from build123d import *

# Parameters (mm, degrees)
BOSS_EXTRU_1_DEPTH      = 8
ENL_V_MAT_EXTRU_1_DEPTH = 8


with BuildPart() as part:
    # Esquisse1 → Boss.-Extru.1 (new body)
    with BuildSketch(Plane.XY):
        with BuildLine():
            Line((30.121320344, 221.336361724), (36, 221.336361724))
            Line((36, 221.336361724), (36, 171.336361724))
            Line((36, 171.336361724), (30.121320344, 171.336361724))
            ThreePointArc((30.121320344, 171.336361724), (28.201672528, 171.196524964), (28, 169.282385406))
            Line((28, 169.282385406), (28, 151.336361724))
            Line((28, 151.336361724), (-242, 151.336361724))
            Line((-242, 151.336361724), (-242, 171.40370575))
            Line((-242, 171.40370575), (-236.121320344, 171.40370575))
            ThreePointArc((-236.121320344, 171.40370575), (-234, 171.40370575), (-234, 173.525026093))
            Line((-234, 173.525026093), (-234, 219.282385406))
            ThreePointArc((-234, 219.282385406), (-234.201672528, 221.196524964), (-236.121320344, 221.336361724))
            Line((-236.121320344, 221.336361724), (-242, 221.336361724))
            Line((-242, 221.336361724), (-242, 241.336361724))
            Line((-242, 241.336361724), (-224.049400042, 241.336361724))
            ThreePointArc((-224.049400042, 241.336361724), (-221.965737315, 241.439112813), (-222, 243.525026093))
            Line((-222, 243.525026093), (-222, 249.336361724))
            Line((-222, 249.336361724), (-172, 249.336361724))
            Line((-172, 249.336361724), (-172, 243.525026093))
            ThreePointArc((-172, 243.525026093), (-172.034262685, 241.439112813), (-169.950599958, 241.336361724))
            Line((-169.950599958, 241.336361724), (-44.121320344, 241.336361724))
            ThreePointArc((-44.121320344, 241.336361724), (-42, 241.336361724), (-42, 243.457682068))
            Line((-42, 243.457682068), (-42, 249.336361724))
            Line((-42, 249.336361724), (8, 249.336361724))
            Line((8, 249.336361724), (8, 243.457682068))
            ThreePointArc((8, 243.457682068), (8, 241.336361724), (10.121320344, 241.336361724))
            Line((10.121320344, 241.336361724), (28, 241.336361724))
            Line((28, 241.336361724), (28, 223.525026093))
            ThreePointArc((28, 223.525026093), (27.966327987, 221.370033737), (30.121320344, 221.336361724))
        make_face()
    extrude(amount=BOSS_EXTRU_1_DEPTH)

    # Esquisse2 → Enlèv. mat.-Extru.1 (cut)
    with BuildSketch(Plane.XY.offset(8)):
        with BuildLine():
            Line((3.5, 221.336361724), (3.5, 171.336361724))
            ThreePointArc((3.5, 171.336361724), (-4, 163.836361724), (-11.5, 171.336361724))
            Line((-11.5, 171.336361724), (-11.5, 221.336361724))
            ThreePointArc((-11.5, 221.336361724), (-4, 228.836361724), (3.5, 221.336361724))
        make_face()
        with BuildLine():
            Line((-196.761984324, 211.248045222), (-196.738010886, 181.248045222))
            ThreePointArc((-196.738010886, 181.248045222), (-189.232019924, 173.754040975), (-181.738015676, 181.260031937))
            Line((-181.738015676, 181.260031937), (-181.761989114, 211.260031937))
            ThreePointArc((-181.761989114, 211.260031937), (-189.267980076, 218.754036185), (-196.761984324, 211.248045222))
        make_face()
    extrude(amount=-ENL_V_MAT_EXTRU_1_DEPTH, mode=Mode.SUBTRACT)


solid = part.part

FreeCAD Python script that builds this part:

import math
import FreeCAD as App
import Part
import Sketcher
from FreeCAD import Vector
Q = App.Units.Quantity

doc = App.newDocument("Part")
body = doc.addObject("PartDesign::Body", "Body")

# Sketch on XY plane
sketch1 = body.newObject("Sketcher::SketchObject", "Sketch")
sketch1.AttachmentSupport = (doc.getObject("XY_Plane"), [""])
sketch1.MapMode = "FlatFace"
sketch1.addGeometry([
    Part.LineSegment(Vector(36, 221.3, 0), Vector(30.1, 221.3, 0)),  # 0
    Part.ArcOfCircle(Part.Circle(Vector(29.1, 222.4, 0), Vector(0, 0, 1), 1.5), math.radians(134), math.radians(314)),  # 1
    Part.LineSegment(Vector(28, 223.5, 0), Vector(28, 241.3, 0)),  # 2
    Part.LineSegment(Vector(28, 241.3, 0), Vector(10.1, 241.3, 0)),  # 3
    Part.ArcOfCircle(Part.Circle(Vector(9.1, 242.4, 0), Vector(0, 0, 1), 1.5), math.radians(135), math.radians(315)),  # 4
    Part.LineSegment(Vector(8, 243.5, 0), Vector(8, 249.3, 0)),  # 5
    Part.LineSegment(Vector(8, 249.3, 0), Vector(-42, 249.3, 0)),  # 6
    Part.LineSegment(Vector(-42, 249.3, 0), Vector(-42, 243.5, 0)),  # 7
    Part.ArcOfCircle(Part.Circle(Vector(-43.1, 242.4, 0), Vector(0, 0, 1), 1.5), math.radians(-135), math.radians(45)),  # 8
    Part.LineSegment(Vector(-44.1, 241.3, 0), Vector(-170, 241.3, 0)),  # 9
    Part.ArcOfCircle(Part.Circle(Vector(-170.9, 242.5, 0), Vector(0, 0, 1), 1.5), math.radians(135), math.radians(311)),  # 10
    Part.LineSegment(Vector(-172, 243.5, 0), Vector(-172, 249.3, 0)),  # 11
    Part.LineSegment(Vector(-172, 249.3, 0), Vector(-222, 249.3, 0)),  # 12
    Part.LineSegment(Vector(-222, 249.3, 0), Vector(-222, 243.5, 0)),  # 13
    Part.ArcOfCircle(Part.Circle(Vector(-223.1, 242.5, 0), Vector(0, 0, 1), 1.5), math.radians(-131), math.radians(45)),  # 14
    Part.LineSegment(Vector(-224, 241.3, 0), Vector(-242, 241.3, 0)),  # 15
    Part.LineSegment(Vector(-242, 241.3, 0), Vector(-242, 221.3, 0)),  # 16
    Part.LineSegment(Vector(-242, 221.3, 0), Vector(-236.1, 221.3, 0)),  # 17
    Part.ArcOfCircle(Part.Circle(Vector(-235.2, 220.1, 0), Vector(0, 0, 1), 1.5), math.radians(-34), math.radians(126)),  # 18
    Part.LineSegment(Vector(-234, 219.3, 0), Vector(-234, 173.5, 0)),  # 19
    Part.ArcOfCircle(Part.Circle(Vector(-235.1, 172.5, 0), Vector(0, 0, 1), 1.5), math.radians(-135), math.radians(45)),  # 20
    Part.LineSegment(Vector(-236.1, 171.4, 0), Vector(-242, 171.4, 0)),  # 21
    Part.LineSegment(Vector(-242, 171.4, 0), Vector(-242, 151.3, 0)),  # 22
    Part.LineSegment(Vector(-242, 151.3, 0), Vector(28, 151.3, 0)),  # 23
    Part.LineSegment(Vector(28, 151.3, 0), Vector(28, 169.3, 0)),  # 24
    Part.ArcOfCircle(Part.Circle(Vector(29.2, 170.1, 0), Vector(0, 0, 1), 1.5), math.radians(54), math.radians(214)),  # 25
    Part.LineSegment(Vector(30.1, 171.3, 0), Vector(36, 171.3, 0)),  # 26
    Part.LineSegment(Vector(36, 171.3, 0), Vector(36, 221.3, 0)),  # 27
], False)
sketch1.addConstraint([
    Sketcher.Constraint("Coincident", 0, 2, 1, 2),
    Sketcher.Constraint("Coincident", 1, 1, 2, 1),
    Sketcher.Constraint("Coincident", 2, 2, 3, 1),
    Sketcher.Constraint("Coincident", 3, 2, 4, 2),
    Sketcher.Constraint("Coincident", 4, 1, 5, 1),
    Sketcher.Constraint("Coincident", 5, 2, 6, 1),
    Sketcher.Constraint("Coincident", 6, 2, 7, 1),
    Sketcher.Constraint("Coincident", 7, 2, 8, 2),
    Sketcher.Constraint("Coincident", 8, 1, 9, 1),
    Sketcher.Constraint("Coincident", 9, 2, 10, 2),
    Sketcher.Constraint("Coincident", 10, 1, 11, 1),
    Sketcher.Constraint("Coincident", 11, 2, 12, 1),
    Sketcher.Constraint("Coincident", 12, 2, 13, 1),
    Sketcher.Constraint("Coincident", 13, 2, 14, 2),
    Sketcher.Constraint("Coincident", 14, 1, 15, 1),
    Sketcher.Constraint("Coincident", 15, 2, 16, 1),
    Sketcher.Constraint("Coincident", 16, 2, 17, 1),
    Sketcher.Constraint("Coincident", 17, 2, 18, 2),
    Sketcher.Constraint("Coincident", 18, 1, 19, 1),
    Sketcher.Constraint("Coincident", 19, 2, 20, 2),
    Sketcher.Constraint("Coincident", 20, 1, 21, 1),
    Sketcher.Constraint("Coincident", 21, 2, 22, 1),
    Sketcher.Constraint("Coincident", 22, 2, 23, 1),
    Sketcher.Constraint("Coincident", 23, 2, 24, 1),
    Sketcher.Constraint("Coincident", 24, 2, 25, 2),
    Sketcher.Constraint("Coincident", 25, 1, 26, 1),
    Sketcher.Constraint("Coincident", 26, 2, 27, 1),
    Sketcher.Constraint("Coincident", 27, 2, 0, 1),
    Sketcher.Constraint("Horizontal", 0),
    Sketcher.Constraint("Vertical", 2),
    Sketcher.Constraint("Horizontal", 3),
    Sketcher.Constraint("Vertical", 5),
    Sketcher.Constraint("Horizontal", 6),
    Sketcher.Constraint("Vertical", 7),
    Sketcher.Constraint("Horizontal", 9),
    Sketcher.Constraint("Vertical", 11),
    Sketcher.Constraint("Horizontal", 12),
    Sketcher.Constraint("Vertical", 13),
    Sketcher.Constraint("Horizontal", 15),
    Sketcher.Constraint("Vertical", 16),
    Sketcher.Constraint("Horizontal", 17),
    Sketcher.Constraint("Vertical", 19),
    Sketcher.Constraint("Horizontal", 21),
    Sketcher.Constraint("Vertical", 22),
    Sketcher.Constraint("Horizontal", 23),
    Sketcher.Constraint("Vertical", 24),
    Sketcher.Constraint("Horizontal", 26),
    Sketcher.Constraint("Vertical", 27),
    Sketcher.Constraint("Equal", 4, 8),
    Sketcher.Constraint("Equal", 8, 10),
    Sketcher.Constraint("Equal", 10, 14),
    Sketcher.Constraint("Equal", 14, 18),
    Sketcher.Constraint("Equal", 18, 20),
    Sketcher.Constraint("Equal", 20, 25),
    Sketcher.Constraint("Horizontal", 4, 3, 8, 3),
    Sketcher.Constraint("Horizontal", 10, 3, 14, 3),
    Sketcher.Constraint("Horizontal", 4, 1, 7, 2),
    Sketcher.Constraint("Horizontal", 3, 2, 8, 1),
    Sketcher.Constraint("Horizontal", 6, 2, 11, 2),
    Sketcher.Constraint("Horizontal", 10, 1, 13, 2),
    Sketcher.Constraint("Horizontal", 9, 2, 14, 1),
    Sketcher.Constraint("Horizontal", 0, 2, 16, 2),
    Sketcher.Constraint("Vertical", 17, 2, 20, 1),
    Sketcher.Constraint("Vertical", 16, 2, 21, 2),
    Sketcher.Constraint("Vertical", 2, 2, 23, 2),
    Sketcher.Constraint("Vertical", 0, 2, 25, 1),
    Sketcher.Constraint("Equal", 6, 12),
    Sketcher.Constraint("Equal", 0, 17),
    Sketcher.Constraint("Equal", 26, 5),
    Sketcher.Constraint("Equal", 12, 27),
    Sketcher.Constraint("Radius", 4, Q("1.5 mm")),
    Sketcher.Constraint("DistanceX", 6, 2, 6, 1, Q("50 mm")),
    Sketcher.Constraint("DistanceX", 23, 1, 23, 2, Q("270 mm")),
    Sketcher.Constraint("DistanceY", 16, 2, 16, 1, Q("20 mm")),
    Sketcher.Constraint("DistanceX", -1, 1, 1, 1, Q("28 mm")),
    Sketcher.Constraint("DistanceX", -1, 1, 4, 1, Q("8 mm")),
    Sketcher.Constraint("DistanceX", 10, 1, -1, 1, Q("172 mm")),
    Sketcher.Constraint("DistanceX", 18, 1, -1, 1, Q("234 mm")),
    Sketcher.Constraint("DistanceX", -1, 1, 26, 2, Q("36 mm")),
    Sketcher.Constraint("DistanceX", 4, 3, 1, 3, Q("20 mm")),
    Sketcher.Constraint("DistanceX", 10, 3, 4, 3, Q("180 mm")),
    Sketcher.Constraint("DistanceX", 20, 3, 14, 3, Q("12 mm")),
    Sketcher.Constraint("DistanceY", 20, 3, 14, 3, Q("70 mm")),
    Sketcher.Constraint("DistanceX", 3, 2, 0, 2, Q("20 mm")),
    Sketcher.Constraint("DistanceY", 3, 2, 5, 2, Q("8 mm")),
    Sketcher.Constraint("DistanceY", 23, 2, 0, 2, Q("70 mm")),
    Sketcher.Constraint("DistanceX", 15, 2, 15, 1, Q("17.9506 mm")),
    Sketcher.Constraint("Radius", 1, Q("1.523996 mm")),
    Sketcher.Constraint("DistanceY", 19, 2, 19, 1, Q("45.757359 mm")),
    Sketcher.Constraint("DistanceY", 11, 1, 11, 2, Q("5.811336 mm")),
    Sketcher.Constraint("DistanceY", 24, 1, 24, 2, Q("17.946024 mm")),
    Sketcher.Constraint("DistanceY", -1, 1, 4, 3, Q("242.397022 mm")),
])
pad1 = body.newObject("PartDesign::Pad", "Pad")
pad1.Profile = sketch1
pad1.Length = 8

# Sketch on XY plane
sketch2 = body.newObject("Sketcher::SketchObject", "Sketch001")
sketch2.AttachmentSupport = (doc.getObject("XY_Plane"), [""])
sketch2.MapMode = "FlatFace"
sketch2.AttachmentOffset = App.Placement(Vector(0, 0, 8), App.Rotation())
sketch2.addGeometry([
    Part.LineSegment(Vector(4, 171, 0), Vector(4, 221, 0)),  # 0
    Part.ArcOfCircle(Part.Circle(Vector(-4, 221, 0), Vector(0, 0, 1), 8), math.radians(0), math.radians(180)),  # 1
    Part.LineSegment(Vector(-12, 221, 0), Vector(-12, 171, 0)),  # 2
    Part.ArcOfCircle(Part.Circle(Vector(-4, 171, 0), Vector(0, 0, 1), 8), math.radians(180), math.radians(360)),  # 3
    Part.LineSegment(Vector(-197, 211, 0), Vector(-197, 181, 0)),  # 4
    Part.ArcOfCircle(Part.Circle(Vector(-189, 181, 0), Vector(0, 0, 1), 8), math.radians(-180), math.radians(0)),  # 5
    Part.LineSegment(Vector(-182, 181, 0), Vector(-182, 211, 0)),  # 6
    Part.ArcOfCircle(Part.Circle(Vector(-189, 211, 0), Vector(0, 0, 1), 8), math.radians(0), math.radians(180)),  # 7
], False)
sketch2.addConstraint([
    Sketcher.Constraint("Tangent", 0, 2, 1, 1),
    Sketcher.Constraint("Tangent", 1, 2, 2, 1),
    Sketcher.Constraint("Tangent", 2, 2, 3, 1),
    Sketcher.Constraint("Tangent", 3, 2, 0, 1),
    Sketcher.Constraint("Tangent", 4, 2, 5, 1),
    Sketcher.Constraint("Tangent", 5, 2, 6, 1),
    Sketcher.Constraint("Tangent", 6, 2, 7, 1),
    Sketcher.Constraint("Tangent", 7, 2, 4, 1),
    Sketcher.Constraint("Vertical", 0),
    Sketcher.Constraint("Vertical", 2),
    Sketcher.Constraint("Equal", 3, 5),
    Sketcher.Constraint("Equal", 5, 7),
    Sketcher.Constraint("Radius", 1, Q("7.5 mm")),
    Sketcher.Constraint("DistanceY", 0, 1, 0, 2, Q("50 mm")),
    Sketcher.Constraint("DistanceX", 1, 3, -1, 1, Q("4 mm")),
    Sketcher.Constraint("DistanceY", 5, 3, 7, 3, Q("30 mm")),
    Sketcher.Constraint("DistanceY", -1, 1, 1, 3, Q("221.336362 mm")),
    Sketcher.Constraint("DistanceY", -1, 1, 5, 3, Q("181.254039 mm")),
    Sketcher.Constraint("DistanceX", 4, 2, -1, 1, Q("196.738011 mm")),
    Sketcher.Constraint("DistanceY", -1, 1, 5, 2, Q("181.260032 mm")),
])
pocket1 = body.newObject("PartDesign::Pocket", "Pocket")
pocket1.Profile = sketch2
pocket1.Length = 8

doc.recompute()
